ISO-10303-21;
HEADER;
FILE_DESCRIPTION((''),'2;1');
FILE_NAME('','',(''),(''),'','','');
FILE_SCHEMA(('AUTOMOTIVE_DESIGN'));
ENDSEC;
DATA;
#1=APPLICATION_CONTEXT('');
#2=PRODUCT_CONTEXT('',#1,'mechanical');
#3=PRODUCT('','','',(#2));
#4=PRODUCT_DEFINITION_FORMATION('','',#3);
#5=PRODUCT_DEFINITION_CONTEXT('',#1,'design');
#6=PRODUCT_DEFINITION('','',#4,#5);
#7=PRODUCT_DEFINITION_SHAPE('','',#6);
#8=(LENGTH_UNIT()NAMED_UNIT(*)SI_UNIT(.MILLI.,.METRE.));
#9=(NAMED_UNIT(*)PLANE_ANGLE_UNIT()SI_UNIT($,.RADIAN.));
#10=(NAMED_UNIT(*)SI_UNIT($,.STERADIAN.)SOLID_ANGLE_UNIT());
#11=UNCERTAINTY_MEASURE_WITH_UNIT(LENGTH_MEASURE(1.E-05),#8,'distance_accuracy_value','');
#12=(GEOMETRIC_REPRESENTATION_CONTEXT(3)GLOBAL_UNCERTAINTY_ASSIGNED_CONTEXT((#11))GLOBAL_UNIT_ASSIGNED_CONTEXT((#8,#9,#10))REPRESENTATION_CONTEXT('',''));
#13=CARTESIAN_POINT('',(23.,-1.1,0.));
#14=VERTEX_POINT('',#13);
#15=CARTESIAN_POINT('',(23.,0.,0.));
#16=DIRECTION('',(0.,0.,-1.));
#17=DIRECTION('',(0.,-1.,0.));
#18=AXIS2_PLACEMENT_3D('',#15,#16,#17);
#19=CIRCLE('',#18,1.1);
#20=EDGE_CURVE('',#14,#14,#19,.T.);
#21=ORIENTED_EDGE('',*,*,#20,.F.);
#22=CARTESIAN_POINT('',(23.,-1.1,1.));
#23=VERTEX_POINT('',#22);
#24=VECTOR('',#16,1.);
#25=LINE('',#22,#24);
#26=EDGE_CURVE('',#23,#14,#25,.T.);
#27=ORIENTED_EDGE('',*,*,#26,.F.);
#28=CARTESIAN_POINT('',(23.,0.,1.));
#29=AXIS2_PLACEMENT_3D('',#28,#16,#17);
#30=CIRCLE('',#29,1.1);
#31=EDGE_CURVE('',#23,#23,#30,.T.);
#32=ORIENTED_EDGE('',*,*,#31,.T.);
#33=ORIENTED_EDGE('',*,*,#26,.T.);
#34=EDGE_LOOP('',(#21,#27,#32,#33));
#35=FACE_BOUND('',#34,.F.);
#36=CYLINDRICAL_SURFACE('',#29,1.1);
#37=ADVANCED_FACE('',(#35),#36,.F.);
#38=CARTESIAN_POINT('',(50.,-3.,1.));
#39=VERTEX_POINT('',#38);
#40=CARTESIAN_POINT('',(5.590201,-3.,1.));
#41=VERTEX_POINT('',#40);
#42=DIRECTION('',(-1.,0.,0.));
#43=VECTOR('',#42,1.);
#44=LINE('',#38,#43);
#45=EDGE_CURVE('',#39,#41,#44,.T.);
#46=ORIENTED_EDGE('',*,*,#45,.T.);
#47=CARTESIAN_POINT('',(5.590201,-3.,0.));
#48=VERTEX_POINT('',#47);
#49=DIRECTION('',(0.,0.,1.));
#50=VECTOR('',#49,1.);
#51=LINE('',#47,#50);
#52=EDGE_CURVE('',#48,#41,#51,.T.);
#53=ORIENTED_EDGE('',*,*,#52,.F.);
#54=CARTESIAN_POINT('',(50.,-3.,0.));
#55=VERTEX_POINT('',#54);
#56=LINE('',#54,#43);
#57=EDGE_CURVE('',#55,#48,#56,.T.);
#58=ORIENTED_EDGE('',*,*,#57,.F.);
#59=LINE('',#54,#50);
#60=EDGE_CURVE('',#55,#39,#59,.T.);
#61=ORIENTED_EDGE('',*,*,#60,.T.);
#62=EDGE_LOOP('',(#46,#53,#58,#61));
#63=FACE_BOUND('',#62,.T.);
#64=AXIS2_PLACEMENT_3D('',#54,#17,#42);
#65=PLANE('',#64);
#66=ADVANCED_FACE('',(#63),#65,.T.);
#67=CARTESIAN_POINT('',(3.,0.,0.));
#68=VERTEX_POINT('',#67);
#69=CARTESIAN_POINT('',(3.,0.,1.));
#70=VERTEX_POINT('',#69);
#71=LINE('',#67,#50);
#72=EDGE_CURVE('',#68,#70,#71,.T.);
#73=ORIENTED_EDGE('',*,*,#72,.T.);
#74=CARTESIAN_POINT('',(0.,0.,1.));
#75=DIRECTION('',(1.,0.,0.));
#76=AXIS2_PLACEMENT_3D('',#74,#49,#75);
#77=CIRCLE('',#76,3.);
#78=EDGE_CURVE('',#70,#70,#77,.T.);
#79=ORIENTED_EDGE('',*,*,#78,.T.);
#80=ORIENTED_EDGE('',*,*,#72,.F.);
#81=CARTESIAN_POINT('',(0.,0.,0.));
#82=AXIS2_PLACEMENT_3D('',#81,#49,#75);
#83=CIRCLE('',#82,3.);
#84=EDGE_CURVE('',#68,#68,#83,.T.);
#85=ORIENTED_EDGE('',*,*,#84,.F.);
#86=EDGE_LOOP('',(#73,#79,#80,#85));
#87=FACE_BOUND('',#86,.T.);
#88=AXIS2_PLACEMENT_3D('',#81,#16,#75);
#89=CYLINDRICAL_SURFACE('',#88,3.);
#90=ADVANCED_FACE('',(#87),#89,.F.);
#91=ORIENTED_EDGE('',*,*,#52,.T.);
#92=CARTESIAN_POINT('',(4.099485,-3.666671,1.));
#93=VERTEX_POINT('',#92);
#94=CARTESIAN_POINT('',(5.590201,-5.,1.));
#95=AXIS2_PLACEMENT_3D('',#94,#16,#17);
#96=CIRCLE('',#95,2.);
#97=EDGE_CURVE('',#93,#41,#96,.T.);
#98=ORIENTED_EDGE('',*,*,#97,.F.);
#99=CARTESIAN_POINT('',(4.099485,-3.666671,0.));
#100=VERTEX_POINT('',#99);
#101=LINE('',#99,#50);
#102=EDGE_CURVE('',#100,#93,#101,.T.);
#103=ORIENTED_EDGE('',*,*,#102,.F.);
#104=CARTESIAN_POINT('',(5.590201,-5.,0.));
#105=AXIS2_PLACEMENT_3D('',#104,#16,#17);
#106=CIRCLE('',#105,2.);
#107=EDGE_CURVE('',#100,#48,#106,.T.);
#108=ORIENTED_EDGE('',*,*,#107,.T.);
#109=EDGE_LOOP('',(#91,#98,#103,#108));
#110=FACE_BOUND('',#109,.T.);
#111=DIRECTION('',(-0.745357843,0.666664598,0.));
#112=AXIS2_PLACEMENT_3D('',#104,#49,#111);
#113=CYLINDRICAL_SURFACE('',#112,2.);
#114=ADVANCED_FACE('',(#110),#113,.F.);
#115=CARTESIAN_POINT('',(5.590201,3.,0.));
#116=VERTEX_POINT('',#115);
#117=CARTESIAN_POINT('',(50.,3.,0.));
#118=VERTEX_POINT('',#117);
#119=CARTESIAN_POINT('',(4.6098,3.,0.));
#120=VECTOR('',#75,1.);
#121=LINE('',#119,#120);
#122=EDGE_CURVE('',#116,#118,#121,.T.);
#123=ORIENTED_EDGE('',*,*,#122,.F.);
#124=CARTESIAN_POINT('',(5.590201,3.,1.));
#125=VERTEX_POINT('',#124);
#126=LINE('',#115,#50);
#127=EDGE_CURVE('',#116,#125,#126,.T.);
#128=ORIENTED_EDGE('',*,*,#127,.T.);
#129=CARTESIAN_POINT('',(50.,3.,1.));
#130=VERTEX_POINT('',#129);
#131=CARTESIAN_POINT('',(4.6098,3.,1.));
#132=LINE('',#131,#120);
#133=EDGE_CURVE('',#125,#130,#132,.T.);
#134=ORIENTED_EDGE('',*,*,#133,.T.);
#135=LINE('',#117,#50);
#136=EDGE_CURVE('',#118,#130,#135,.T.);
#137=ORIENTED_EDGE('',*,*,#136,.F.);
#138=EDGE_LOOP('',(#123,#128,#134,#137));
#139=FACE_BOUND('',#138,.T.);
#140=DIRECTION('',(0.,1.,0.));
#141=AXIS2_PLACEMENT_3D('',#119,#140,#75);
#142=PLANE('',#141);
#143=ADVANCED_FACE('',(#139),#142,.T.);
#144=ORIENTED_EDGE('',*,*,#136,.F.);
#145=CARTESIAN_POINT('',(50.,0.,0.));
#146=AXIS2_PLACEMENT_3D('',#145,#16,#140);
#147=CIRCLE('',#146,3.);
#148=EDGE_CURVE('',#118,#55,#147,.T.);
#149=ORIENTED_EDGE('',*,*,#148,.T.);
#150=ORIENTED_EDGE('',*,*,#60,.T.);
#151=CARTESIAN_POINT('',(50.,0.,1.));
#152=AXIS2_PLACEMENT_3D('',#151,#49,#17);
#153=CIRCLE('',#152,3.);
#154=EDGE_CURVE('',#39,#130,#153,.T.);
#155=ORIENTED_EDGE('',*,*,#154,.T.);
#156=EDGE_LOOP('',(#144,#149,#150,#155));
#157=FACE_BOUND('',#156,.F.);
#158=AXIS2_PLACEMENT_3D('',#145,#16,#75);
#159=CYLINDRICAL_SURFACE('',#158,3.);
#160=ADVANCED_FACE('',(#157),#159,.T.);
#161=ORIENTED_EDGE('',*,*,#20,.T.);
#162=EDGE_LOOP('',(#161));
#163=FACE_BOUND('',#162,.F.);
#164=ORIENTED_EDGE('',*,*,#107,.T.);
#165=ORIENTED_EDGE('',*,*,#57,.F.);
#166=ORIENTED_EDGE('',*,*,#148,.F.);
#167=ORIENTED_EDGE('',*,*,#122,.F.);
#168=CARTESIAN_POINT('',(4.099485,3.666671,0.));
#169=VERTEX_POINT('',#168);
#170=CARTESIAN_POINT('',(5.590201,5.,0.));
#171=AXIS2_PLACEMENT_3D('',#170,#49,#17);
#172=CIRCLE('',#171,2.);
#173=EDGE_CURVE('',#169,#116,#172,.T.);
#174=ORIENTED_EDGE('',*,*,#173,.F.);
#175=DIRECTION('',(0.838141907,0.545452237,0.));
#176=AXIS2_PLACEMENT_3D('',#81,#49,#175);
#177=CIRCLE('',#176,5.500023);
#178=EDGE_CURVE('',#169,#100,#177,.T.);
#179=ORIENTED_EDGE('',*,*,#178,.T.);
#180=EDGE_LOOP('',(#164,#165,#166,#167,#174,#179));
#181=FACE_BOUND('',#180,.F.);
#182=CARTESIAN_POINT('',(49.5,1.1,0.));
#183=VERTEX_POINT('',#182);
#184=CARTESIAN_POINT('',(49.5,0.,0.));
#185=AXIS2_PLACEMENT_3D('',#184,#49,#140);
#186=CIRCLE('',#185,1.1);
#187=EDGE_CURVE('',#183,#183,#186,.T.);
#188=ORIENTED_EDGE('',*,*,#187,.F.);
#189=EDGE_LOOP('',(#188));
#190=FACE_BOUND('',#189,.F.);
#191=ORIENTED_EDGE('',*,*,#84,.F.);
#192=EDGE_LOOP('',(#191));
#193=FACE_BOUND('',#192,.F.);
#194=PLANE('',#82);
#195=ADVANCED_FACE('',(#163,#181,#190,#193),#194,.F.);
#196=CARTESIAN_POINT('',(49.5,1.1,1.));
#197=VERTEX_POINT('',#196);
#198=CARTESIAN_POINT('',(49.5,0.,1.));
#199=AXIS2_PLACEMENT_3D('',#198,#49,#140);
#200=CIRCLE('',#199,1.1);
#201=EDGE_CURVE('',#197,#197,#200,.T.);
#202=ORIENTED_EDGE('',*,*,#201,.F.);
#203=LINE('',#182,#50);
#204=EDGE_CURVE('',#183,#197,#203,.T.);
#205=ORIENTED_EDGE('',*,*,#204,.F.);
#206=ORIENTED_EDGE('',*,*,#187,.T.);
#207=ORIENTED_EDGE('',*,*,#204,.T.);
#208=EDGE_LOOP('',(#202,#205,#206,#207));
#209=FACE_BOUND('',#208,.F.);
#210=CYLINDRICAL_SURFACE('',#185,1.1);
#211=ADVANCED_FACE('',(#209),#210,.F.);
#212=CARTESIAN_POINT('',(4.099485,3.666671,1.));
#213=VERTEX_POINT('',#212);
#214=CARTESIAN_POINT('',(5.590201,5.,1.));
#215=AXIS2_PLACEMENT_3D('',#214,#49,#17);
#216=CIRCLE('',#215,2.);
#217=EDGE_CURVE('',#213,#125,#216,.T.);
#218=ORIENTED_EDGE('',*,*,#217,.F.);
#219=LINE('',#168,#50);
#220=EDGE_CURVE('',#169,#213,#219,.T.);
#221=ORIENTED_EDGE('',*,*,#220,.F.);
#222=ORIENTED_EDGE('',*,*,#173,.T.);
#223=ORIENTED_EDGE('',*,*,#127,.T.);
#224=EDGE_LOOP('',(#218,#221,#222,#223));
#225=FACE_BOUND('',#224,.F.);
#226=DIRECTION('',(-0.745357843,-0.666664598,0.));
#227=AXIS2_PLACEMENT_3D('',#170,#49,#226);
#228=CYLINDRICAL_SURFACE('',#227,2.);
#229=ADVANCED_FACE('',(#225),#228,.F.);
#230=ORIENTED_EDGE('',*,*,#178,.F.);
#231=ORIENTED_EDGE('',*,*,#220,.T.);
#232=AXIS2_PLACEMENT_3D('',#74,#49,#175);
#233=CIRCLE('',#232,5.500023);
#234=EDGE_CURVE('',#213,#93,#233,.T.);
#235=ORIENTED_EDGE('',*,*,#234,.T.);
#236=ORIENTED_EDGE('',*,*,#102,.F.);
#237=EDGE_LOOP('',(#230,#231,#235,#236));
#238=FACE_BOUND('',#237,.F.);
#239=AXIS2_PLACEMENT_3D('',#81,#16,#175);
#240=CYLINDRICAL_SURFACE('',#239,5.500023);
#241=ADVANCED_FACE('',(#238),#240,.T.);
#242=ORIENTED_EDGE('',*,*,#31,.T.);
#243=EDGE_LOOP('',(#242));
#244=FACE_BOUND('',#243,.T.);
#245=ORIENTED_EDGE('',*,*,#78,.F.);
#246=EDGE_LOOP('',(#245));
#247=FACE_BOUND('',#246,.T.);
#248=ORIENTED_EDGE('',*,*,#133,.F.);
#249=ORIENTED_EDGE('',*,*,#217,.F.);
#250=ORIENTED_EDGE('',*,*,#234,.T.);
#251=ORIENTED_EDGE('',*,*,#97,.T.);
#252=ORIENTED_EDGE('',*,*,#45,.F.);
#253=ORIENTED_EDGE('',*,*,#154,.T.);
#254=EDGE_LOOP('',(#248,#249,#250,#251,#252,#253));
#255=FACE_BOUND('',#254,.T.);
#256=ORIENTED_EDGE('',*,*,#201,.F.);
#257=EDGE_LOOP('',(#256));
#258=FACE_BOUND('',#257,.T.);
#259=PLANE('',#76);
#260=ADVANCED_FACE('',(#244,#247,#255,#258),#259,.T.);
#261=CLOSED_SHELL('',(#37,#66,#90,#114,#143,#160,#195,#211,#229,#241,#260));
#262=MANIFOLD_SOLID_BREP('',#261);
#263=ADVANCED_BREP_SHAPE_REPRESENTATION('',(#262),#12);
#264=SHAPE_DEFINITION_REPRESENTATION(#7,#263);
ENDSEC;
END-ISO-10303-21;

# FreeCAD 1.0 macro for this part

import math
import FreeCAD as App
import Part
import Sketcher

V = App.Vector
Q = App.Units.Quantity


def edges_at(feature, points):
    """Names of the edges that pass closest to the given points."""
    edges = feature.Shape.Edges
    near = lambda p: min(range(len(edges)), key=lambda i: edges[i].distToShape(Part.Vertex(*p))[0])
    return sorted({f"Edge{near(p) + 1}" for p in points})

doc = App.newDocument("Part")
body = doc.addObject("PartDesign::Body", "Body")

# Sketch on XY plane
sketch1 = body.newObject("Sketcher::SketchObject", "Sketch")
sketch1.AttachmentSupport = (doc.getObject("XY_Plane"), [""])
sketch1.MapMode = "FlatFace"
sketch1.addGeometry(Part.ArcOfCircle(Part.Circle(V(0, 0, 0), V(0, 0, 1), 5.500023), math.radians(33.055573), math.radians(326.944427)), False)
sketch1.addGeometry(Part.LineSegment(V(4.6098, -3, 0), V(50, -3, 0)), False)
sketch1.addGeometry(Part.ArcOfCircle(Part.Circle(V(50, 0, 0), V(0, 0, 1), 3), math.radians(-90), math.radians(90)), False)
sketch1.addGeometry(Part.LineSegment(V(50, 3, 0), V(4.6098, 3, 0)), False)
sketch1.addGeometry(Part.Circle(V(0, 0, 0), V(0, 0, 1), 3), False)
sketch1.addConstraint(Sketcher.Constraint("Coincident", 0, 2, 1, 1))
sketch1.addConstraint(Sketcher.Constraint("Tangent", 1, 2, 2, 1))
sketch1.addConstraint(Sketcher.Constraint("Tangent", 2, 2, 3, 1))
sketch1.addConstraint(Sketcher.Constraint("Coincident", 3, 2, 0, 1))
sketch1.addConstraint(Sketcher.Constraint("Horizontal", 1))
sketch1.addConstraint(Sketcher.Constraint("Horizontal", 3))
sketch1.addConstraint(Sketcher.Constraint("Coincident", 0, 3, -1, 1))
sketch1.addConstraint(Sketcher.Constraint("Coincident", 4, 3, -1, 1))
sketch1.addConstraint(Sketcher.Constraint("Equal", 2, 4))
sketch1.addConstraint(Sketcher.Constraint("PointOnObject", 2, 3, -1))
sketch1.addConstraint(Sketcher.Constraint("Diameter", 4, Q("6 mm")))
sketch1.addConstraint(Sketcher.Constraint("Radius", 0, Q("5.5 mm")))
sketch1.addConstraint(Sketcher.Constraint("DistanceX", -1, 1, 2, 3, Q("50 mm")))
pad1 = body.newObject("PartDesign::Pad", "Pad")
pad1.Profile = sketch1
pad1.Length = 1
doc.recompute()

fillet = body.newObject("PartDesign::Fillet", "Fillet")
fillet.Base = (pad1, edges_at(pad1, [(4.61, 3, 0.5), (4.61, -3, 0.5)]))
fillet.Radius = 2

# Sketch on XY plane
sketch2 = body.newObject("Sketcher::SketchObject", "Sketch001")
sketch2.AttachmentSupport = (doc.getObject("XY_Plane"), [""])
sketch2.MapMode = "FlatFace"
sketch2.addGeometry(Part.Circle(V(49.5, 0, 0), V(0, 0, 1), 1.1), False)
sketch2.addConstraint(Sketcher.Constraint("PointOnObject", 0, 3, -1))
sketch2.addConstraint(Sketcher.Constraint("Diameter", 0, Q("2.2 mm")))
sketch2.addConstraint(Sketcher.Constraint("DistanceX", -1, 1, 0, 3, Q("49.5 mm")))
doc.recompute()
hole = body.newObject("PartDesign::Hole", "Hole")
hole.Profile = sketch2
hole.ThreadType = "None"
hole.Diameter = 2.2
hole.DepthType = "Dimension"
hole.Depth = 1
hole.DrillPoint = "Flat"
hole.Reversed = True

# Sketch on XY plane
sketch3 = body.newObject("Sketcher::SketchObject", "Sketch002")
sketch3.AttachmentSupport = (doc.getObject("XY_Plane"), [""])
sketch3.MapMode = "FlatFace"
sketch3.AttachmentOffset = App.Placement(V(0, 0, 1), App.Rotation())
sketch3.addGeometry(Part.Circle(V(23, 0, 0), V(0, 0, 1), 1.1), False)
sketch3.addConstraint(Sketcher.Constraint("PointOnObject", 0, 3, -1))
sketch3.addConstraint(Sketcher.Constraint("Diameter", 0, Q("2.2 mm")))
sketch3.addConstraint(Sketcher.Constraint("DistanceX", -1, 1, 0, 3, Q("23 mm")))
doc.recompute()
hole2 = body.newObject("PartDesign::Hole", "Hole001")
hole2.Profile = sketch3
hole2.ThreadType = "None"
hole2.Diameter = 2.2
hole2.DepthType = "Dimension"
hole2.Depth = 1
hole2.DrillPoint = "Flat"

doc.recompute()
